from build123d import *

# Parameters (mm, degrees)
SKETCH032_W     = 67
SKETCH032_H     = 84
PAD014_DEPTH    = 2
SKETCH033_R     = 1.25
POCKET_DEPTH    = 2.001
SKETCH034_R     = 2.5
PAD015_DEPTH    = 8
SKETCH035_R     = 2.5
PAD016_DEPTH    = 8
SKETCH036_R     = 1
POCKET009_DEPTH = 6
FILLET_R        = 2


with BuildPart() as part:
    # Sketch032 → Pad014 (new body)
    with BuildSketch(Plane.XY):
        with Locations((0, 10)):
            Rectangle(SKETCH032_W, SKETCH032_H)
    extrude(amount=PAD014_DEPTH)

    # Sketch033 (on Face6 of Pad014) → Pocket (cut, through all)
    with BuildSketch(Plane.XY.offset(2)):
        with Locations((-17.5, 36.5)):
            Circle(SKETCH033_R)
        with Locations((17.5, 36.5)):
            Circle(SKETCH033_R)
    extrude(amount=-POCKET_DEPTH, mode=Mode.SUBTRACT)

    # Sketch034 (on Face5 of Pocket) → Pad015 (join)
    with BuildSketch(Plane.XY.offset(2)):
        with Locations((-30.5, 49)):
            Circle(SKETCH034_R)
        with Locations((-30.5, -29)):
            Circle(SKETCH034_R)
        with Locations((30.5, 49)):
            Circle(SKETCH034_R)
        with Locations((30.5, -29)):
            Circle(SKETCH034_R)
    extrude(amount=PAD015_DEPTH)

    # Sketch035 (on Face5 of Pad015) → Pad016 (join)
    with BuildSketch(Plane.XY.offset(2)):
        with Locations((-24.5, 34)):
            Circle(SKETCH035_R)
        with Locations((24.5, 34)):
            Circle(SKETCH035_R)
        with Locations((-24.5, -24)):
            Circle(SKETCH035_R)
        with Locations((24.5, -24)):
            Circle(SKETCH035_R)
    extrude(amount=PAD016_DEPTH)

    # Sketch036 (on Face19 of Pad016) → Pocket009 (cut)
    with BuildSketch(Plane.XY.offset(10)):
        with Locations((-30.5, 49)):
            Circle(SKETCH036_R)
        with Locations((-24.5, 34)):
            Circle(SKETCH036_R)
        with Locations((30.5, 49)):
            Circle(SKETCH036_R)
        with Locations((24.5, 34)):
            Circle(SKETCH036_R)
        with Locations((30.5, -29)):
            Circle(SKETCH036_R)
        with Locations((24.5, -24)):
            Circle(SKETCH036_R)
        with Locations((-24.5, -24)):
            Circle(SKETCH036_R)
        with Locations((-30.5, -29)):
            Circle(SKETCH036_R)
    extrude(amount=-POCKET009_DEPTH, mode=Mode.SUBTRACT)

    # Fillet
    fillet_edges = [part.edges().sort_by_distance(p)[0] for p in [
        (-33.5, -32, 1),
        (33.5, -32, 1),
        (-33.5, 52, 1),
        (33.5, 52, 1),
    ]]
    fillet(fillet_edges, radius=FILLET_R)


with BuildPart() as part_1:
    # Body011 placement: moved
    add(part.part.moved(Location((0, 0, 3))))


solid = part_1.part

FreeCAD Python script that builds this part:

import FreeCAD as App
import Part
import Sketcher
from FreeCAD import Vector


def edges_at(feature, points):
    """Names of the edges that pass closest to the given points."""
    edges = feature.Shape.Edges
    near = lambda p: min(range(len(edges)), key=lambda i: edges[i].distToShape(Part.Vertex(*p))[0])
    return sorted({f"Edge{near(p) + 1}" for p in points})


def add_polygon(sketch, points):
    """Adds a closed chain of lines whose ends are joined by coincident constraints."""
    first, n = sketch.GeometryCount, len(points)
    for a, b in zip(points, points[1:] + points[:1]):
        sketch.addGeometry(Part.LineSegment(App.Vector(*a, 0), App.Vector(*b, 0)), False)
    for i in range(n):
        sketch.addConstraint(Sketcher.Constraint("Coincident", first + i, 2, first + (i + 1) % n, 1))

doc = App.newDocument("Part")
body = doc.addObject("PartDesign::Body", "Body")

sketch1 = body.newObject("Sketcher::SketchObject", "Sketch")
sketch1.AttachmentSupport = (doc.getObject("XY_Plane"), [""])
sketch1.MapMode = "FlatFace"
add_polygon(sketch1, [(-34, 52), (-34, -32), (34, -32), (34, 52)])
sketch1.addConstraint([
    Sketcher.Constraint("Vertical", 0),
    Sketcher.Constraint("Horizontal", 1),
    Sketcher.Constraint("Vertical", 2),
    Sketcher.Constraint("Horizontal", 3),
    Sketcher.Constraint("DistanceX", 1, 1, 1, 2, 67.0),
    Sketcher.Constraint("DistanceY", 0, 2, 0, 1, 84.0),
    Sketcher.Constraint("DistanceY", 0, 2, -1, 1, 32.0),
    Sketcher.Constraint("DistanceX", 0, 2, -1, 1, 33.5),
])
pad1 = body.newObject("PartDesign::Pad", "Pad")
pad1.Profile = sketch1
pad1.Length = 2

sketch2 = body.newObject("Sketcher::SketchObject", "Sketch001")
sketch2.AttachmentSupport = (doc.getObject("XY_Plane"), [""])
sketch2.MapMode = "FlatFace"
sketch2.AttachmentOffset = App.Placement(Vector(0, 0, 2), App.Rotation())
sketch2.addGeometry([
    Part.Circle(Vector(-17.5, 36.5, 0), Vector(0, 0, 1), 1.2),
    Part.Circle(Vector(17.5, 36.5, 0), Vector(0, 0, 1), 1.2),
], False)
sketch2.addConstraint([
    Sketcher.Constraint("Equal", 0, 1),
    Sketcher.Constraint("Symmetric", 0, 3, 1, 3, -2),
    Sketcher.Constraint("Diameter", 0, 2.5),
    Sketcher.Constraint("DistanceX", 0, 3, 1, 3, 35.0),
    Sketcher.Constraint("DistanceY", -1, 1, 0, 3, 36.5),
])
pocket1 = body.newObject("PartDesign::Pocket", "Pocket")
pocket1.Profile = sketch2
pocket1.Type = "ThroughAll"

sketch3 = body.newObject("Sketcher::SketchObject", "Sketch002")
sketch3.AttachmentSupport = (doc.getObject("XY_Plane"), [""])
sketch3.MapMode = "FlatFace"
sketch3.AttachmentOffset = App.Placement(Vector(0, 0, 2), App.Rotation())
sketch3.addGeometry([
    Part.Circle(Vector(-30.5, 49, 0), Vector(0, 0, 1), 2.5),
    Part.Circle(Vector(-30.5, -29, 0), Vector(0, 0, 1), 2.5),
    Part.Circle(Vector(30.5, 49, 0), Vector(0, 0, 1), 2.5),
    Part.Circle(Vector(30.5, -29, 0), Vector(0, 0, 1), 2.5),
], False)
sketch3.addConstraint([
    Sketcher.Constraint("Equal", 0, 1),
    Sketcher.Constraint("Equal", 1, 2),
    Sketcher.Constraint("Equal", 2, 3),
    Sketcher.Constraint("Symmetric", 0, 3, 2, 3, -2),
    Sketcher.Constraint("Symmetric", 1, 3, 3, 3, -2),
    Sketcher.Constraint("Vertical", 0, 3, 1, 3),
    Sketcher.Constraint("Diameter", 0, 5.0),
    Sketcher.Constraint("DistanceY", -1, 1, 0, 3, 49.0),
    Sketcher.Constraint("DistanceY", 1, 3, -1, 1, 29.0),
    Sketcher.Constraint("DistanceX", 0, 3, 2, 3, 61.0),
])
pad2 = body.newObject("PartDesign::Pad", "Pad001")
pad2.Profile = sketch3
pad2.Length = 8

sketch4 = body.newObject("Sketcher::SketchObject", "Sketch003")
sketch4.AttachmentSupport = (doc.getObject("XY_Plane"), [""])
sketch4.MapMode = "FlatFace"
sketch4.AttachmentOffset = App.Placement(Vector(0, 0, 2), App.Rotation())
sketch4.addGeometry([
    Part.Circle(Vector(-24.5, 34, 0), Vector(0, 0, 1), 2.5),
    Part.Circle(Vector(24.5, 34, 0), Vector(0, 0, 1), 2.5),
    Part.Circle(Vector(-24.5, -24, 0), Vector(0, 0, 1), 2.5),
    Part.Circle(Vector(24.5, -24, 0), Vector(0, 0, 1), 2.5),
], False)
sketch4.addConstraint([
    Sketcher.Constraint("Equal", 0, 1),
    Sketcher.Constraint("Equal", 1, 2),
    Sketcher.Constraint("Equal", 2, 3),
    Sketcher.Constraint("Symmetric", 0, 3, 1, 3, -2),
    Sketcher.Constraint("Symmetric", 2, 3, 3, 3, -2),
    Sketcher.Constraint("Vertical", 0, 3, 2, 3),
    Sketcher.Constraint("Diameter", 0, 5.0),
    Sketcher.Constraint("DistanceY", -1, 1, 0, 3, 34.0),
    Sketcher.Constraint("DistanceY", 2, 3, -1, 1, 24.0),
    Sketcher.Constraint("DistanceX", 0, 3, 1, 3, 49.0),
])
pad3 = body.newObject("PartDesign::Pad", "Pad002")
pad3.Profile = sketch4
pad3.Length = 8

sketch5 = body.newObject("Sketcher::SketchObject", "Sketch004")
sketch5.AttachmentSupport = (doc.getObject("XY_Plane"), [""])
sketch5.MapMode = "FlatFace"
sketch5.AttachmentOffset = App.Placement(Vector(0, 0, 10), App.Rotation())
sketch5.addGeometry([
    Part.Circle(Vector(-30.5, 49, 0), Vector(0, 0, 1), 1),
    Part.Circle(Vector(-24.5, 34, 0), Vector(0, 0, 1), 1),
    Part.Circle(Vector(30.5, 49, 0), Vector(0, 0, 1), 1),
    Part.Circle(Vector(24.5, 34, 0), Vector(0, 0, 1), 1),
    Part.Circle(Vector(30.5, -29, 0), Vector(0, 0, 1), 1),
    Part.Circle(Vector(24.5, -24, 0), Vector(0, 0, 1), 1),
    Part.Circle(Vector(-24.5, -24, 0), Vector(0, 0, 1), 1),
    Part.Circle(Vector(-30.5, -29, 0), Vector(0, 0, 1), 1),
], False)
sketch5.addConstraint([
    Sketcher.Constraint("Equal", 0, 1),
    Sketcher.Constraint("Equal", 1, 2),
    Sketcher.Constraint("Equal", 2, 3),
    Sketcher.Constraint("Equal", 3, 4),
    Sketcher.Constraint("Equal", 4, 5),
    Sketcher.Constraint("Equal", 5, 6),
    Sketcher.Constraint("Equal", 6, 7),
    Sketcher.Constraint("Symmetric", 0, 3, 2, 3, -2),
    Sketcher.Constraint("Symmetric", 1, 3, 3, 3, -2),
    Sketcher.Constraint("Symmetric", 5, 3, 6, 3, -2),
    Sketcher.Constraint("Symmetric", 4, 3, 7, 3, -2),
    Sketcher.Constraint("Vertical", 2, 3, 4, 3),
    Sketcher.Constraint("Vertical", 3, 3, 5, 3),
    Sketcher.Constraint("Diameter", 0, 2.0),
    Sketcher.Constraint("DistanceY", -1, 1, 0, 3, 49.0),
    Sketcher.Constraint("DistanceY", -1, 1, 1, 3, 34.0),
    Sketcher.Constraint("DistanceY", 4, 3, -1, 1, 29.0),
    Sketcher.Constraint("DistanceY", 5, 3, -1, 1, 24.0),
    Sketcher.Constraint("DistanceX", 0, 3, 1, 3, 6.0),
    Sketcher.Constraint("DistanceX", 1, 3, 2, 3, 55.0),
])
pocket2 = body.newObject("PartDesign::Pocket", "Pocket001")
pocket2.Profile = sketch5
pocket2.Length = 6
doc.recompute()

fillet = body.newObject("PartDesign::Fillet", "Fillet")
fillet.Base = (pocket2, edges_at(pocket2, [
    (-33.5, -32, 1),
    (33.5, -32, 1),
    (-33.5, 52, 1),
    (33.5, 52, 1),
]))
fillet.Radius = 2
body2 = doc.addObject("PartDesign::Body", "Body001")
doc.recompute()

body.Placement = App.Placement(Vector(0, 0, 3), App.Rotation(Vector(0, 0, 1), 0))
boolean = body2.newObject("PartDesign::Boolean", "Boolean")
boolean.Type = "Fuse"
boolean.addObjects([body])

doc.recompute()
